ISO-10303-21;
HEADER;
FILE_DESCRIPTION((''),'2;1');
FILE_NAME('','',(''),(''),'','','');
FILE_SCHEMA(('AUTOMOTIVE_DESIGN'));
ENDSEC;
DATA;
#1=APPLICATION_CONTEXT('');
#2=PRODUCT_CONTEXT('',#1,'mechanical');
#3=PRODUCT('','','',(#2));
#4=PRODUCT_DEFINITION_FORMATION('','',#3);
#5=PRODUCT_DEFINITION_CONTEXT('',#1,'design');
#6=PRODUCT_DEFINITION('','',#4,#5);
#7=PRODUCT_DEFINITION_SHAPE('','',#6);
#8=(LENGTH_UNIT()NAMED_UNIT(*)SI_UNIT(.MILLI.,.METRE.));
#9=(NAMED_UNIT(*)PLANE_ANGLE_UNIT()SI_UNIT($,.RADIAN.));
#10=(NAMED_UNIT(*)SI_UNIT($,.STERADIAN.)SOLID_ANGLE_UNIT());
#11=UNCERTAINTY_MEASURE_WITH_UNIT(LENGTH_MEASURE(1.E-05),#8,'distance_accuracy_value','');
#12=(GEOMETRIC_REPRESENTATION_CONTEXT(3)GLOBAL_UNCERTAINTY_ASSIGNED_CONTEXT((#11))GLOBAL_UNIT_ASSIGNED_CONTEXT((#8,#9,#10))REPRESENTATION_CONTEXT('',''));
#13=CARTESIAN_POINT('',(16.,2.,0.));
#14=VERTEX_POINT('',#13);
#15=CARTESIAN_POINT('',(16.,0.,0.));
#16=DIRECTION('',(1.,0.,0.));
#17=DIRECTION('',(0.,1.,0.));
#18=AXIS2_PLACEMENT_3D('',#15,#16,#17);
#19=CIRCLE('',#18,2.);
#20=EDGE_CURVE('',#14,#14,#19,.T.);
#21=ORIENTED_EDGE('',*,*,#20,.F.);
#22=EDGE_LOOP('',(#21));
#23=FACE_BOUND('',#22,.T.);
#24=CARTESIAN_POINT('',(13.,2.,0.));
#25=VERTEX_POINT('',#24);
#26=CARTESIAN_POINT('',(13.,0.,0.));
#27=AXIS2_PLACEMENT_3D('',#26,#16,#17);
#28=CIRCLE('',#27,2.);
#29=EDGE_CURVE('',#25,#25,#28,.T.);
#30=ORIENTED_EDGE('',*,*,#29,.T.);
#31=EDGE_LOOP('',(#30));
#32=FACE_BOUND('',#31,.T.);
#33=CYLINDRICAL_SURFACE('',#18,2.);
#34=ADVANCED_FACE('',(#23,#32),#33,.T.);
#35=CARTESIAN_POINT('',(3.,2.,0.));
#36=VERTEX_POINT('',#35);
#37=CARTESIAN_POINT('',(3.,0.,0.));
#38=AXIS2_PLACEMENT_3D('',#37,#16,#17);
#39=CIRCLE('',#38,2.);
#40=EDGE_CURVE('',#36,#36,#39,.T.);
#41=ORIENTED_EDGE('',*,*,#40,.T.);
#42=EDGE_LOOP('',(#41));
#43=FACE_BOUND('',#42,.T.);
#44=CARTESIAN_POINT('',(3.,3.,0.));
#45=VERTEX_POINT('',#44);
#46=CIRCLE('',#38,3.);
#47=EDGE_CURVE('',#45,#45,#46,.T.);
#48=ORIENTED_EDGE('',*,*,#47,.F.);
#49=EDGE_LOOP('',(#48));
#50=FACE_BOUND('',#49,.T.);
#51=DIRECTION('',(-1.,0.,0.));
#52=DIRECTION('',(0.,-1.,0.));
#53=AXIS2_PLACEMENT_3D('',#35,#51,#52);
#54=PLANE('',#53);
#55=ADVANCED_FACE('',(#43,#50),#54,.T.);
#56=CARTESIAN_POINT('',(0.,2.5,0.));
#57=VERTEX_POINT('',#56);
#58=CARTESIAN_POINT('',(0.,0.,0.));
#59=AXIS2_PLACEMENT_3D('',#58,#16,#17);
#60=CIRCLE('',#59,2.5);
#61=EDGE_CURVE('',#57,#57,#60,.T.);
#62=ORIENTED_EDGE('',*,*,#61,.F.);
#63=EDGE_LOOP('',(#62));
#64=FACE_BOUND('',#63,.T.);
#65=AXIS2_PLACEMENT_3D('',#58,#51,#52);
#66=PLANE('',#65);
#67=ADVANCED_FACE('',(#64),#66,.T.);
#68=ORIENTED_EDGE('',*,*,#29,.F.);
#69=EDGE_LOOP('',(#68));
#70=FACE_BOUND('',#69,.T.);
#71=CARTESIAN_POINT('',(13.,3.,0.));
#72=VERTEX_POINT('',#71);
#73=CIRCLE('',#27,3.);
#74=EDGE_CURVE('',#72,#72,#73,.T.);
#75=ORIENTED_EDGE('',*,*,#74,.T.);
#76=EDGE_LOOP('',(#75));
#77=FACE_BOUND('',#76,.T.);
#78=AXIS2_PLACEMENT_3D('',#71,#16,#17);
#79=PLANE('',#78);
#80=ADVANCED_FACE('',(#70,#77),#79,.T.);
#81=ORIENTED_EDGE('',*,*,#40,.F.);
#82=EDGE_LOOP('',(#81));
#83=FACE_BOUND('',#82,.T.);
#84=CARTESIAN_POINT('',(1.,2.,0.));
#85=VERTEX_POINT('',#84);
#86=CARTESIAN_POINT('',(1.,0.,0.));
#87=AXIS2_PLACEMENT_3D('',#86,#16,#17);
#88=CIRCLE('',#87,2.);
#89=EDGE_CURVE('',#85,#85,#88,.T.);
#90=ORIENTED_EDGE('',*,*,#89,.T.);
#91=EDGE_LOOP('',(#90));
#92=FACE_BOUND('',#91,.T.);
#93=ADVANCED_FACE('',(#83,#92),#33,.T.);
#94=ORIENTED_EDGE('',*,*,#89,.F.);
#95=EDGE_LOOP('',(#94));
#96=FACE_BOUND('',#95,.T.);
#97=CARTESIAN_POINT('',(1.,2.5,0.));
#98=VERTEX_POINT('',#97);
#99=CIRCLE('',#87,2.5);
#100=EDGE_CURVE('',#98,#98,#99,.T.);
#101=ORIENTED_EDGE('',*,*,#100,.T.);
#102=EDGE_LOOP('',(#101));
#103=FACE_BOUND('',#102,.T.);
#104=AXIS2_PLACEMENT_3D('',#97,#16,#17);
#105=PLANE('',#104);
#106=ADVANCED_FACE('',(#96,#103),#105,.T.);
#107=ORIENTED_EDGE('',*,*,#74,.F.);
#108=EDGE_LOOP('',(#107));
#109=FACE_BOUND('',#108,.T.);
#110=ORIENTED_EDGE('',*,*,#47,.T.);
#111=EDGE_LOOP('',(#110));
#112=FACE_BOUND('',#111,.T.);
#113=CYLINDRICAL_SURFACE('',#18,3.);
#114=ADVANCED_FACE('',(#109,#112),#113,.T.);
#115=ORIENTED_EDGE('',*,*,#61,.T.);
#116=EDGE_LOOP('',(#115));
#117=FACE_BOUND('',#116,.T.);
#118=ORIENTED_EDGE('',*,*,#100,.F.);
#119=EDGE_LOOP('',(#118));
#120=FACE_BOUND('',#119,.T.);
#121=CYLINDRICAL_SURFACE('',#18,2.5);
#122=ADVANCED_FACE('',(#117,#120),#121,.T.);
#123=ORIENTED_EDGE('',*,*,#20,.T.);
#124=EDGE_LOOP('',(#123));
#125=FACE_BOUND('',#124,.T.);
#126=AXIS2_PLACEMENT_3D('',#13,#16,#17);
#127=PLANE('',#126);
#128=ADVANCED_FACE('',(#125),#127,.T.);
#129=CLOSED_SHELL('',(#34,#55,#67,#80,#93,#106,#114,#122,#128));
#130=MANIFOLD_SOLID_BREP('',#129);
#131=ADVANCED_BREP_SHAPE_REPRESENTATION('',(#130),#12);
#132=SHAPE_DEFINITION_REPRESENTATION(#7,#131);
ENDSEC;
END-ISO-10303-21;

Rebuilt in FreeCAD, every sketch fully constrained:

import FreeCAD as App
import Part
import Sketcher
Q = App.Units.Quantity

doc = App.newDocument("Part")
body = doc.addObject("PartDesign::Body", "Body")

# Sketch on XY plane
sketch1 = body.newObject("Sketcher::SketchObject", "Sketch")
sketch1.AttachmentSupport = (doc.getObject("XY_Plane"), [""])
sketch1.MapMode = "FlatFace"
sketch1.addGeometry(Part.LineSegment(App.Vector(0, 2.5, 0), App.Vector(0, 0, 0)), False)
sketch1.addGeometry(Part.LineSegment(App.Vector(0, 0, 0), App.Vector(16, 0, 0)), False)
sketch1.addGeometry(Part.LineSegment(App.Vector(16, 0, 0), App.Vector(16, 2, 0)), False)
sketch1.addGeometry(Part.LineSegment(App.Vector(16, 2, 0), App.Vector(13, 2, 0)), False)
sketch1.addGeometry(Part.LineSegment(App.Vector(13, 2, 0), App.Vector(13, 3, 0)), False)
sketch1.addGeometry(Part.LineSegment(App.Vector(13, 3, 0), App.Vector(3, 3, 0)), False)
sketch1.addGeometry(Part.LineSegment(App.Vector(3, 3, 0), App.Vector(3, 2, 0)), False)
sketch1.addGeometry(Part.LineSegment(App.Vector(3, 2, 0), App.Vector(1, 2, 0)), False)
sketch1.addGeometry(Part.LineSegment(App.Vector(1, 2, 0), App.Vector(1, 2.5, 0)), False)
sketch1.addGeometry(Part.LineSegment(App.Vector(1, 2.5, 0), App.Vector(0, 2.5, 0)), False)
sketch1.addConstraint(Sketcher.Constraint("Coincident", 0, 2, 1, 1))
sketch1.addConstraint(Sketcher.Constraint("Coincident", 1, 2, 2, 1))
sketch1.addConstraint(Sketcher.Constraint("Coincident", 2, 2, 3, 1))
sketch1.addConstraint(Sketcher.Constraint("Coincident", 3, 2, 4, 1))
sketch1.addConstraint(Sketcher.Constraint("Coincident", 4, 2, 5, 1))
sketch1.addConstraint(Sketcher.Constraint("Coincident", 5, 2, 6, 1))
sketch1.addConstraint(Sketcher.Constraint("Coincident", 6, 2, 7, 1))
sketch1.addConstraint(Sketcher.Constraint("Coincident", 7, 2, 8, 1))
sketch1.addConstraint(Sketcher.Constraint("Coincident", 8, 2, 9, 1))
sketch1.addConstraint(Sketcher.Constraint("Coincident", 9, 2, 0, 1))
sketch1.addConstraint(Sketcher.Constraint("Vertical", 0))
sketch1.addConstraint(Sketcher.Constraint("Horizontal", 1))
sketch1.addConstraint(Sketcher.Constraint("Vertical", 2))
sketch1.addConstraint(Sketcher.Constraint("Horizontal", 3))
sketch1.addConstraint(Sketcher.Constraint("Vertical", 4))
sketch1.addConstraint(Sketcher.Constraint("Horizontal", 5))
sketch1.addConstraint(Sketcher.Constraint("Vertical", 6))
sketch1.addConstraint(Sketcher.Constraint("Horizontal", 7))
sketch1.addConstraint(Sketcher.Constraint("Vertical", 8))
sketch1.addConstraint(Sketcher.Constraint("Horizontal", 9))
sketch1.addConstraint(Sketcher.Constraint("Coincident", 0, 2, -1, 1))
sketch1.addConstraint(Sketcher.Constraint("Horizontal", 3, 2, 6, 2))
sketch1.addConstraint(Sketcher.Constraint("Equal", 7, 2))
sketch1.addConstraint(Sketcher.Constraint("Equal", 9, 4))
sketch1.addConstraint(Sketcher.Constraint("DistanceX", 1, 1, 1, 2, Q("16 mm")))
sketch1.addConstraint(Sketcher.Constraint("DistanceX", 3, 2, 3, 1, Q("3 mm")))
sketch1.addConstraint(Sketcher.Constraint("DistanceX", 5, 2, 5, 1, Q("10 mm")))
sketch1.addConstraint(Sketcher.Constraint("DistanceX", 7, 2, 7, 1, Q("2 mm")))
sketch1.addConstraint(Sketcher.Constraint("DistanceY", 0, 2, 0, 1, Q("2.5 mm")))
revolution = body.newObject("PartDesign::Revolution", "Revolution")
revolution.Profile = sketch1
revolution.ReferenceAxis = (sketch1, ["H_Axis"])
revolution.Angle = 360

doc.recompute()
